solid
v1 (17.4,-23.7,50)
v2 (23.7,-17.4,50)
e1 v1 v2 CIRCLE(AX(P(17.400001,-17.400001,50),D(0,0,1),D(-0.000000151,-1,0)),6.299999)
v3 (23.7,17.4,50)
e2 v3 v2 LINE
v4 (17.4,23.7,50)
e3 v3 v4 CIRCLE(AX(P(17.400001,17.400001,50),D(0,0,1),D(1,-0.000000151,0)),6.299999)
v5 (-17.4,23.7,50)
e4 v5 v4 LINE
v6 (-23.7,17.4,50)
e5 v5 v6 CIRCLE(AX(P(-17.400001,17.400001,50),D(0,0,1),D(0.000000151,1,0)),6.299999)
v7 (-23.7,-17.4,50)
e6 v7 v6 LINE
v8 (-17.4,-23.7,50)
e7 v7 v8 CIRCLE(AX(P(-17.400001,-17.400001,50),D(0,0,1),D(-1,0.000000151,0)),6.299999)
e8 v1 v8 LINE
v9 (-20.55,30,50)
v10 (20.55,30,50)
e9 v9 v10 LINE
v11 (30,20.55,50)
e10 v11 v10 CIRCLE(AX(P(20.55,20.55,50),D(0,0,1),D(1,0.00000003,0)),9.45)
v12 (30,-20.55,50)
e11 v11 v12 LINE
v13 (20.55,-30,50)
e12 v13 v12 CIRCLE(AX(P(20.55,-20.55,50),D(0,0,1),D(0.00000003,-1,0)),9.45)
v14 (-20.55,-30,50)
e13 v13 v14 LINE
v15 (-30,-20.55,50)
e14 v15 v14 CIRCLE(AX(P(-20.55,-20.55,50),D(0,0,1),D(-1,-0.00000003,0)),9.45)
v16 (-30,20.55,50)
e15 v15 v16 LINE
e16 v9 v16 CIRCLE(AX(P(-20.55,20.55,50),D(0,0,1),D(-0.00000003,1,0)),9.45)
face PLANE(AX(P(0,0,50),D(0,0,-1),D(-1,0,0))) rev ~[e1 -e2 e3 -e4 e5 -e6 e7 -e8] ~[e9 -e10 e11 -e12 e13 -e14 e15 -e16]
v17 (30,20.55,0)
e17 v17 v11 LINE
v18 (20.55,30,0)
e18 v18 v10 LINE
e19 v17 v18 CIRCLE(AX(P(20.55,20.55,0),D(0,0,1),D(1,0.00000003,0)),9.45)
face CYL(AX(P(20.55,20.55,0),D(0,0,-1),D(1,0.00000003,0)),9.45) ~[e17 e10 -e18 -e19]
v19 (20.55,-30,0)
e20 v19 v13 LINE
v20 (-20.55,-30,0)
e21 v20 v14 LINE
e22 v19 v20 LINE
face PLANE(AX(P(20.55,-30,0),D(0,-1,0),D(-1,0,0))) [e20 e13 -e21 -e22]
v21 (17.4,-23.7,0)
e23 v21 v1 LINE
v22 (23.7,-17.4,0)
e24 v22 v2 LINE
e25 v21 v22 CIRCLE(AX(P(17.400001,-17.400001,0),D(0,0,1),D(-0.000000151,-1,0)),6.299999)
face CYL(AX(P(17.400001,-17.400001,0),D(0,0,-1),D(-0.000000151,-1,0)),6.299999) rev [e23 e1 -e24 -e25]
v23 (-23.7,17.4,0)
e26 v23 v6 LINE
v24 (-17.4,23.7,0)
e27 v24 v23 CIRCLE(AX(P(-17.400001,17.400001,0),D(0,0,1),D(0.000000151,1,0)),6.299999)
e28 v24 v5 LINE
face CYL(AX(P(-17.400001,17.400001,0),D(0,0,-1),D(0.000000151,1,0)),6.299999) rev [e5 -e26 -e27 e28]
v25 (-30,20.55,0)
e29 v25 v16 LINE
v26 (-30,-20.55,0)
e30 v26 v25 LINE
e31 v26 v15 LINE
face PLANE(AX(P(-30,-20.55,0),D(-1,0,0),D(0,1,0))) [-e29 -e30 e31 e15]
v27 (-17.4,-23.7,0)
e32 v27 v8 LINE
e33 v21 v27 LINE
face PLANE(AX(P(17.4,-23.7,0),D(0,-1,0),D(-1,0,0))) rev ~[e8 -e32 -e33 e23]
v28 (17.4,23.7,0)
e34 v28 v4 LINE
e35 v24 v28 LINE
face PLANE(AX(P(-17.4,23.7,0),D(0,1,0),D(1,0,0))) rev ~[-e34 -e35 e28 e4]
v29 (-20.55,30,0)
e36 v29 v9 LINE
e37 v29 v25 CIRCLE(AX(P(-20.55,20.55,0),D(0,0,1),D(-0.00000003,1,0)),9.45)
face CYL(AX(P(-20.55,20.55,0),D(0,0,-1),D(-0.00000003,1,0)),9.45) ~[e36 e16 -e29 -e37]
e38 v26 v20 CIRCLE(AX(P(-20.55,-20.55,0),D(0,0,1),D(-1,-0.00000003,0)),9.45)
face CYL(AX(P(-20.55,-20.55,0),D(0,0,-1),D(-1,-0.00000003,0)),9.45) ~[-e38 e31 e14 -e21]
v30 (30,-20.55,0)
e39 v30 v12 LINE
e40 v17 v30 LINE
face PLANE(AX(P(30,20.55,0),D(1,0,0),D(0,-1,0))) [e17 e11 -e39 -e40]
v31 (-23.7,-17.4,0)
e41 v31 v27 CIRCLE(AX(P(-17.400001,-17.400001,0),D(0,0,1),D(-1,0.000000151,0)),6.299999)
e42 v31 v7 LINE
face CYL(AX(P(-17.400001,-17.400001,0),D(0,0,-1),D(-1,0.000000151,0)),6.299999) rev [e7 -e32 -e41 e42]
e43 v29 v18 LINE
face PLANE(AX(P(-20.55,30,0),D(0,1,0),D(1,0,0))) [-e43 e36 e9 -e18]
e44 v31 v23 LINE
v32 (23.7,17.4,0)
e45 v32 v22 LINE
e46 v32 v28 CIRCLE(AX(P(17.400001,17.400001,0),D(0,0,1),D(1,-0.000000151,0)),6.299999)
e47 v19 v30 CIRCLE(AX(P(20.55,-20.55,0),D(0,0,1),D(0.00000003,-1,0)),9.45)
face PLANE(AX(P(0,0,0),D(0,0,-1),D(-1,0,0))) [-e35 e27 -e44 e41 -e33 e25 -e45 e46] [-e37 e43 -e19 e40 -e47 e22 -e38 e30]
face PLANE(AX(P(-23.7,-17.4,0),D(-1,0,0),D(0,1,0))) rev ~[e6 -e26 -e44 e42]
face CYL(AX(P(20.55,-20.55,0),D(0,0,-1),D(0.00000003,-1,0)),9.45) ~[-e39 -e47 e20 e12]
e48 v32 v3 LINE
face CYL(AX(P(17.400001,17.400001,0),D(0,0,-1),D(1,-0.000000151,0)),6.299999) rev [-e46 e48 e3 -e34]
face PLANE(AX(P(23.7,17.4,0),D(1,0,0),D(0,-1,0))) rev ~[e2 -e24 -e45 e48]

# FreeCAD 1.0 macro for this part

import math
import FreeCAD as App
import Part
import Sketcher
from FreeCAD import Vector

doc = App.newDocument("Part")
body = doc.addObject("PartDesign::Body", "Body")

sketch1 = body.newObject("Sketcher::SketchObject", "Sketch")
sketch1.AttachmentSupport = (doc.getObject("XY_Plane"), [""])
sketch1.MapMode = "FlatFace"
sketch1.addGeometry(Part.LineSegment(Vector(20.55, 30, 0), Vector(-20.55, 30, 0)), False)
sketch1.addGeometry(Part.ArcOfCircle(Part.Circle(Vector(-20.55, 20.55, 0), Vector(0, 0, 1), 9.45), math.radians(90.000002), math.radians(179.999998)), False)
sketch1.addGeometry(Part.LineSegment(Vector(-30, 20.55, 0), Vector(-30, -20.55, 0)), False)
sketch1.addGeometry(Part.ArcOfCircle(Part.Circle(Vector(-20.55, -20.55, 0), Vector(0, 0, 1), 9.45), math.radians(-179.999998), math.radians(-90.000002)), False)
sketch1.addGeometry(Part.LineSegment(Vector(-20.55, -30, 0), Vector(20.55, -30, 0)), False)
sketch1.addGeometry(Part.ArcOfCircle(Part.Circle(Vector(20.55, -20.55, 0), Vector(0, 0, 1), 9.45), math.radians(-89.999998), math.radians(-0.000002)), False)
sketch1.addGeometry(Part.LineSegment(Vector(30, -20.55, 0), Vector(30, 20.55, 0)), False)
sketch1.addGeometry(Part.ArcOfCircle(Part.Circle(Vector(20.55, 20.55, 0), Vector(0, 0, 1), 9.45), math.radians(0.000002), math.radians(89.999998)), False)
sketch1.addGeometry(Part.LineSegment(Vector(-17.4, 23.7, 0), Vector(17.4, 23.7, 0)), False)
sketch1.addGeometry(Part.ArcOfCircle(Part.Circle(Vector(17.400001, 17.400001, 0), Vector(0, 0, 1), 6.299999), math.radians(-0.000009), math.radians(90.000009)), False)
sketch1.addGeometry(Part.LineSegment(Vector(23.7, 17.4, 0), Vector(23.7, -17.4, 0)), False)
sketch1.addGeometry(Part.ArcOfCircle(Part.Circle(Vector(17.400001, -17.400001, 0), Vector(0, 0, 1), 6.299999), math.radians(-90.000009), math.radians(0.000009)), False)
sketch1.addGeometry(Part.LineSegment(Vector(17.4, -23.7, 0), Vector(-17.4, -23.7, 0)), False)
sketch1.addGeometry(Part.ArcOfCircle(Part.Circle(Vector(-17.400001, -17.400001, 0), Vector(0, 0, 1), 6.299999), math.radians(179.999991), math.radians(270.000009)), False)
sketch1.addGeometry(Part.LineSegment(Vector(-23.7, -17.4, 0), Vector(-23.7, 17.4, 0)), False)
sketch1.addGeometry(Part.ArcOfCircle(Part.Circle(Vector(-17.400001, 17.400001, 0), Vector(0, 0, 1), 6.299999), math.radians(89.999991), math.radians(180.000009)), False)
sketch1.addConstraint(Sketcher.Constraint("Tangent", 0, 2, 1, 1))
sketch1.addConstraint(Sketcher.Constraint("Tangent", 1, 2, 2, 1))
sketch1.addConstraint(Sketcher.Constraint("Tangent", 2, 2, 3, 1))
sketch1.addConstraint(Sketcher.Constraint("Tangent", 3, 2, 4, 1))
sketch1.addConstraint(Sketcher.Constraint("Tangent", 4, 2, 5, 1))
sketch1.addConstraint(Sketcher.Constraint("Tangent", 5, 2, 6, 1))
sketch1.addConstraint(Sketcher.Constraint("Tangent", 6, 2, 7, 1))
sketch1.addConstraint(Sketcher.Constraint("Tangent", 7, 2, 0, 1))
sketch1.addConstraint(Sketcher.Constraint("Tangent", 8, 2, 9, 2))
sketch1.addConstraint(Sketcher.Constraint("Tangent", 9, 1, 10, 1))
sketch1.addConstraint(Sketcher.Constraint("Tangent", 10, 2, 11, 2))
sketch1.addConstraint(Sketcher.Constraint("Tangent", 11, 1, 12, 1))
sketch1.addConstraint(Sketcher.Constraint("Tangent", 12, 2, 13, 2))
sketch1.addConstraint(Sketcher.Constraint("Tangent", 13, 1, 14, 1))
sketch1.addConstraint(Sketcher.Constraint("Tangent", 14, 2, 15, 2))
sketch1.addConstraint(Sketcher.Constraint("Tangent", 15, 1, 8, 1))
sketch1.addConstraint(Sketcher.Constraint("Horizontal", 0))
sketch1.addConstraint(Sketcher.Constraint("Vertical", 2))
sketch1.addConstraint(Sketcher.Constraint("Horizontal", 4))
sketch1.addConstraint(Sketcher.Constraint("Vertical", 6))
sketch1.addConstraint(Sketcher.Constraint("Horizontal", 8))
sketch1.addConstraint(Sketcher.Constraint("Vertical", 10))
sketch1.addConstraint(Sketcher.Constraint("Horizontal", 12))
sketch1.addConstraint(Sketcher.Constraint("Vertical", 14))
sketch1.addConstraint(Sketcher.Constraint("Equal", 1, 3))
sketch1.addConstraint(Sketcher.Constraint("Equal", 3, 5))
sketch1.addConstraint(Sketcher.Constraint("Equal", 5, 7))
sketch1.addConstraint(Sketcher.Constraint("Equal", 9, 11))
sketch1.addConstraint(Sketcher.Constraint("Equal", 11, 13))
sketch1.addConstraint(Sketcher.Constraint("Equal", 13, 15))
sketch1.addConstraint(Sketcher.Constraint("Symmetric", 1, 3, 5, 3, -1, 1))
sketch1.addConstraint(Sketcher.Constraint("Symmetric", 9, 3, 13, 3, -1, 1))
sketch1.addConstraint(Sketcher.Constraint("Equal", 4, 2))
sketch1.addConstraint(Sketcher.Constraint("Equal", 12, 10))
sketch1.addConstraint(Sketcher.Constraint("Radius", 9, 6.299999))
sketch1.addConstraint(Sketcher.Constraint("Radius", 1, 9.45))
sketch1.addConstraint(Sketcher.Constraint("DistanceX", 0, 2, 0, 1, 41.1))
sketch1.addConstraint(Sketcher.Constraint("DistanceX", 8, 1, 8, 2, 34.8))
pad1 = body.newObject("PartDesign::Pad", "Pad")
pad1.Profile = sketch1
pad1.Length = 50

doc.recompute()
